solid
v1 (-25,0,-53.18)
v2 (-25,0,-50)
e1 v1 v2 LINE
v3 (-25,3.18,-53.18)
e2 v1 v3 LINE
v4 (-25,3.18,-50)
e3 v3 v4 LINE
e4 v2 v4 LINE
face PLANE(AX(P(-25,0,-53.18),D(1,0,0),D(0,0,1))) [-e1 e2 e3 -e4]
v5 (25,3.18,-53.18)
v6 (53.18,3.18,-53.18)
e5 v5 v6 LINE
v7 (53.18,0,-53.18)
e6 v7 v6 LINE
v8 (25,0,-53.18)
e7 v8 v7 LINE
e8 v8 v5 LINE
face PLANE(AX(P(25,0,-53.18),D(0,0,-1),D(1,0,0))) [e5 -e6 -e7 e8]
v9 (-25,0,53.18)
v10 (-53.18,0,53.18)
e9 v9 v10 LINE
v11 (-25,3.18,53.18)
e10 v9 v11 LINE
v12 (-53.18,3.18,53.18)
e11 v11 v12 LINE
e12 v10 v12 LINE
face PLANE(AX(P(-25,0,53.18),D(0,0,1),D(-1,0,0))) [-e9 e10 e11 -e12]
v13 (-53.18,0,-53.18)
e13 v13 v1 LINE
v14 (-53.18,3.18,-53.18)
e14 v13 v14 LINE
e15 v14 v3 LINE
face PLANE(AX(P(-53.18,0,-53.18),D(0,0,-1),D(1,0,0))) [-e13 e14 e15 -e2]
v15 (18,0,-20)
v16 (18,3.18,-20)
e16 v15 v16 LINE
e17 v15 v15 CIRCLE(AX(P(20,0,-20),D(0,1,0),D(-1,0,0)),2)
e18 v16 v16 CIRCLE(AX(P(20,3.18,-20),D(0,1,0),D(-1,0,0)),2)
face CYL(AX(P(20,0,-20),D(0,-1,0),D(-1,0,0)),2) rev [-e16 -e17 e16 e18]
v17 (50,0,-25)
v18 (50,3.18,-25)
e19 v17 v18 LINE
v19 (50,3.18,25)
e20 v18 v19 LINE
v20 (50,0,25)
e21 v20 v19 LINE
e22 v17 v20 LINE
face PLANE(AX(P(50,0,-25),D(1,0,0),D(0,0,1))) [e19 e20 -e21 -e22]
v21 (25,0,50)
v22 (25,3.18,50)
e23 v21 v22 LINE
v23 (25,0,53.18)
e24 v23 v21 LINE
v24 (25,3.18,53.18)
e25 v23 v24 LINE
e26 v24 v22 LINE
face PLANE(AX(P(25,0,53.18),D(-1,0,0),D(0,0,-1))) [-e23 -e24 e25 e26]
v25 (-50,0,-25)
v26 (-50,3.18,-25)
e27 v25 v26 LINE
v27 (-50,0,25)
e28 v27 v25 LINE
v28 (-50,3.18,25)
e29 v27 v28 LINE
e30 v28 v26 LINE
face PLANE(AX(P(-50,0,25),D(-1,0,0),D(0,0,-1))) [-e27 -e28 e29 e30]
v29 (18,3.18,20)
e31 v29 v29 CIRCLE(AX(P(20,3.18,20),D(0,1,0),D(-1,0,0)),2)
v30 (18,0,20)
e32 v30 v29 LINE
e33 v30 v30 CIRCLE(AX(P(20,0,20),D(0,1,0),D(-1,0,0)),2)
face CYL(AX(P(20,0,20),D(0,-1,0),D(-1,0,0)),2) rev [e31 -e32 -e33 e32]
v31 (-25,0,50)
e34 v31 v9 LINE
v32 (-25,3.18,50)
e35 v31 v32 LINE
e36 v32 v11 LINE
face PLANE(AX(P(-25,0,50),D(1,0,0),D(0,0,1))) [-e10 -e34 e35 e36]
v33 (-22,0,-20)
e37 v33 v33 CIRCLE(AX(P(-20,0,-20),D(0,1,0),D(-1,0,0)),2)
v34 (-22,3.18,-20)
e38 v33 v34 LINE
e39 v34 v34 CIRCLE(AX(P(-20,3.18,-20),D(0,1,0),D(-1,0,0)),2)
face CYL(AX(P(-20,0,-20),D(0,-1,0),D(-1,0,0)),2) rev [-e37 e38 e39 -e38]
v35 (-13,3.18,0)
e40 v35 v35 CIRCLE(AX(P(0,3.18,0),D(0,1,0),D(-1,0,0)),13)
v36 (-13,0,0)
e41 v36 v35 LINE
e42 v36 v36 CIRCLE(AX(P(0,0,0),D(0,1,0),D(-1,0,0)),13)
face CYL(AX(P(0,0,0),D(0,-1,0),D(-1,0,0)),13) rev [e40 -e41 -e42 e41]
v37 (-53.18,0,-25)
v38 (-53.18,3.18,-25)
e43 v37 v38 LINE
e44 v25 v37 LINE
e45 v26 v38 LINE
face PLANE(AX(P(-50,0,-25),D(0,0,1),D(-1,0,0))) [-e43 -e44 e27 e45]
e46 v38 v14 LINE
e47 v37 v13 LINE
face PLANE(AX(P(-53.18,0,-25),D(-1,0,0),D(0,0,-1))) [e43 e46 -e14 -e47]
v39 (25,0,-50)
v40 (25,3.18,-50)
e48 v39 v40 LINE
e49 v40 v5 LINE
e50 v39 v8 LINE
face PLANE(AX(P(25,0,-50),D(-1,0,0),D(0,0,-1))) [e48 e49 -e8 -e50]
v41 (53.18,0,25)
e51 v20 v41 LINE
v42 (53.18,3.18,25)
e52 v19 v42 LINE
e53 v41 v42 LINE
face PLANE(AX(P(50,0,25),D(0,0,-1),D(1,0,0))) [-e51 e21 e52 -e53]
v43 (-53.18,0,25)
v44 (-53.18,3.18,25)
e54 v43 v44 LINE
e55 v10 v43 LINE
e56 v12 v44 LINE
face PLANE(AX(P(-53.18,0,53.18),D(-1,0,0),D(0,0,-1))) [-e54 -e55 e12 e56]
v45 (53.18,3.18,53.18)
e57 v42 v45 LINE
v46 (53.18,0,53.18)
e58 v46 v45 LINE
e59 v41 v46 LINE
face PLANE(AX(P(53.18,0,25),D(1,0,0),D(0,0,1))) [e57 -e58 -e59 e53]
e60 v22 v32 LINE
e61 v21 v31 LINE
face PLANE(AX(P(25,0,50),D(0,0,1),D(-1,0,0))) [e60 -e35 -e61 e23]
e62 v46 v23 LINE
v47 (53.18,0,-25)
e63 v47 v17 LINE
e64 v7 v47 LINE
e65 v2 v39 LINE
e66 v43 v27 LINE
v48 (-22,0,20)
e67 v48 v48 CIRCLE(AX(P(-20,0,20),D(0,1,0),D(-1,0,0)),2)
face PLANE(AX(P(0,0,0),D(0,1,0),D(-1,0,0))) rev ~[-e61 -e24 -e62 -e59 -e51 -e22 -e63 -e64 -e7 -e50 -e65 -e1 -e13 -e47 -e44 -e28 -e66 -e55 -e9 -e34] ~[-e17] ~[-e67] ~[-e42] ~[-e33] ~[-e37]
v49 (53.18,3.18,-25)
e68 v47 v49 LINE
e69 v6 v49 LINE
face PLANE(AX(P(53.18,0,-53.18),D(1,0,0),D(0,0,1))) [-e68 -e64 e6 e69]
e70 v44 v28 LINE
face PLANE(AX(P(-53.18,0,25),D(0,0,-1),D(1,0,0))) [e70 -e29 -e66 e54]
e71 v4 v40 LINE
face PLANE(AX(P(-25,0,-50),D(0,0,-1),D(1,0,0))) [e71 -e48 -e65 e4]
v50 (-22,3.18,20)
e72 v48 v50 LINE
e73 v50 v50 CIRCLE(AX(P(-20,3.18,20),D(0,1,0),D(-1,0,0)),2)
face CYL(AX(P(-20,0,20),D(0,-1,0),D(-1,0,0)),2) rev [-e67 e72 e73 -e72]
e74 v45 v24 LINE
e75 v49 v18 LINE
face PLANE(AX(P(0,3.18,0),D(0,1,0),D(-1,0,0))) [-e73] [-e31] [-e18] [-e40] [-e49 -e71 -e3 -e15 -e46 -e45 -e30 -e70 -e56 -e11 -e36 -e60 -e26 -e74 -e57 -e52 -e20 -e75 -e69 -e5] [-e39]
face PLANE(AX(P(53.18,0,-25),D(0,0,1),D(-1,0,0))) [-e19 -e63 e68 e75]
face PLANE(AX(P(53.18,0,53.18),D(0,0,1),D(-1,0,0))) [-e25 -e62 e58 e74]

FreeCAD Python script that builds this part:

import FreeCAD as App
import Part
import Sketcher
from FreeCAD import Vector


def add_polygon(sketch, points):
    """Adds a closed chain of lines whose ends are joined by coincident constraints."""
    first, n = sketch.GeometryCount, len(points)
    for a, b in zip(points, points[1:] + points[:1]):
        sketch.addGeometry(Part.LineSegment(App.Vector(*a, 0), App.Vector(*b, 0)), False)
    for i in range(n):
        sketch.addConstraint(Sketcher.Constraint("Coincident", first + i, 2, first + (i + 1) % n, 1))

doc = App.newDocument("Part")
body = doc.addObject("PartDesign::Body", "Body")

sketch1 = body.newObject("Sketcher::SketchObject", "Sketch")
sketch1.AttachmentSupport = (doc.getObject("XZ_Plane"), [""])
sketch1.MapMode = "FlatFace"
add_polygon(sketch1, [(25, 53.18), (53.18, 53.18), (53.18, 25), (50, 25), (50, -25), (53.18, -25), (53.18, -53.18), (25, -53.18), (25, -50), (-25, -50), (-25, -53.18), (-53.18, -53.18), (-53.18, -25), (-50, -25), (-50, 25), (-53.18, 25), (-53.18, 53.18), (-25, 53.18), (-25, 50), (25, 50)])
sketch1.addGeometry(Part.Circle(Vector(20, -20, 0), Vector(0, 0, 1), 2), False)
sketch1.addGeometry(Part.Circle(Vector(-20, -20, 0), Vector(0, 0, 1), 2), False)
sketch1.addGeometry(Part.Circle(Vector(20, 20, 0), Vector(0, 0, 1), 2), False)
sketch1.addGeometry(Part.Circle(Vector(0, 0, 0), Vector(0, 0, 1), 13), False)
sketch1.addGeometry(Part.Circle(Vector(-20, 20, 0), Vector(0, 0, 1), 2), False)
sketch1.addConstraint([
    Sketcher.Constraint("Horizontal", 0),
    Sketcher.Constraint("Vertical", 1),
    Sketcher.Constraint("Horizontal", 2),
    Sketcher.Constraint("Vertical", 3),
    Sketcher.Constraint("Horizontal", 4),
    Sketcher.Constraint("Vertical", 5),
    Sketcher.Constraint("Horizontal", 6),
    Sketcher.Constraint("Vertical", 7),
    Sketcher.Constraint("Horizontal", 8),
    Sketcher.Constraint("Vertical", 9),
    Sketcher.Constraint("Horizontal", 10),
    Sketcher.Constraint("Vertical", 11),
    Sketcher.Constraint("Horizontal", 12),
    Sketcher.Constraint("Vertical", 13),
    Sketcher.Constraint("Horizontal", 14),
    Sketcher.Constraint("Vertical", 15),
    Sketcher.Constraint("Horizontal", 16),
    Sketcher.Constraint("Vertical", 17),
    Sketcher.Constraint("Horizontal", 18),
    Sketcher.Constraint("Vertical", 19),
    Sketcher.Constraint("Coincident", 23, 3, -1, 1),
    Sketcher.Constraint("Equal", 20, 21),
    Sketcher.Constraint("Equal", 21, 22),
    Sketcher.Constraint("Equal", 22, 24),
    Sketcher.Constraint("Symmetric", 21, 3, 22, 3, -1, 1),
    Sketcher.Constraint("Symmetric", 20, 3, 24, 3, -1, 1),
    Sketcher.Constraint("Symmetric", 0, 2, 10, 2, -1, 1),
    Sketcher.Constraint("Symmetric", 2, 2, 12, 2, -1, 1),
    Sketcher.Constraint("Symmetric", 4, 2, 14, 2, -1, 1),
    Sketcher.Constraint("Symmetric", 6, 2, 16, 2, -1, 1),
    Sketcher.Constraint("Symmetric", 8, 2, 18, 2, -1, 1),
    Sketcher.Constraint("Symmetric", 20, 3, 21, 3, -2),
    Sketcher.Constraint("Symmetric", 6, 2, 9, 2, -2),
    Sketcher.Constraint("Symmetric", 4, 2, 11, 2, -2),
    Sketcher.Constraint("Equal", 16, 1),
    Sketcher.Constraint("Equal", 18, 3),
    Sketcher.Constraint("Equal", 14, 7),
    Sketcher.Constraint("Diameter", 20, 4.0),
    Sketcher.Constraint("Diameter", 23, 26.0),
    Sketcher.Constraint("DistanceX", 8, 2, 8, 1, 50.0),
    Sketcher.Constraint("DistanceX", -1, 1, 20, 3, 20.0),
    Sketcher.Constraint("DistanceY", 20, 3, -1, 1, 20.0),
    Sketcher.Constraint("DistanceX", -1, 1, 2, 2, 50.0),
    Sketcher.Constraint("DistanceX", 2, 2, 2, 1, 3.18),
])
pad1 = body.newObject("PartDesign::Pad", "Pad")
pad1.Profile = sketch1
pad1.Length = 3.18
pad1.Reversed = True

doc.recompute()
